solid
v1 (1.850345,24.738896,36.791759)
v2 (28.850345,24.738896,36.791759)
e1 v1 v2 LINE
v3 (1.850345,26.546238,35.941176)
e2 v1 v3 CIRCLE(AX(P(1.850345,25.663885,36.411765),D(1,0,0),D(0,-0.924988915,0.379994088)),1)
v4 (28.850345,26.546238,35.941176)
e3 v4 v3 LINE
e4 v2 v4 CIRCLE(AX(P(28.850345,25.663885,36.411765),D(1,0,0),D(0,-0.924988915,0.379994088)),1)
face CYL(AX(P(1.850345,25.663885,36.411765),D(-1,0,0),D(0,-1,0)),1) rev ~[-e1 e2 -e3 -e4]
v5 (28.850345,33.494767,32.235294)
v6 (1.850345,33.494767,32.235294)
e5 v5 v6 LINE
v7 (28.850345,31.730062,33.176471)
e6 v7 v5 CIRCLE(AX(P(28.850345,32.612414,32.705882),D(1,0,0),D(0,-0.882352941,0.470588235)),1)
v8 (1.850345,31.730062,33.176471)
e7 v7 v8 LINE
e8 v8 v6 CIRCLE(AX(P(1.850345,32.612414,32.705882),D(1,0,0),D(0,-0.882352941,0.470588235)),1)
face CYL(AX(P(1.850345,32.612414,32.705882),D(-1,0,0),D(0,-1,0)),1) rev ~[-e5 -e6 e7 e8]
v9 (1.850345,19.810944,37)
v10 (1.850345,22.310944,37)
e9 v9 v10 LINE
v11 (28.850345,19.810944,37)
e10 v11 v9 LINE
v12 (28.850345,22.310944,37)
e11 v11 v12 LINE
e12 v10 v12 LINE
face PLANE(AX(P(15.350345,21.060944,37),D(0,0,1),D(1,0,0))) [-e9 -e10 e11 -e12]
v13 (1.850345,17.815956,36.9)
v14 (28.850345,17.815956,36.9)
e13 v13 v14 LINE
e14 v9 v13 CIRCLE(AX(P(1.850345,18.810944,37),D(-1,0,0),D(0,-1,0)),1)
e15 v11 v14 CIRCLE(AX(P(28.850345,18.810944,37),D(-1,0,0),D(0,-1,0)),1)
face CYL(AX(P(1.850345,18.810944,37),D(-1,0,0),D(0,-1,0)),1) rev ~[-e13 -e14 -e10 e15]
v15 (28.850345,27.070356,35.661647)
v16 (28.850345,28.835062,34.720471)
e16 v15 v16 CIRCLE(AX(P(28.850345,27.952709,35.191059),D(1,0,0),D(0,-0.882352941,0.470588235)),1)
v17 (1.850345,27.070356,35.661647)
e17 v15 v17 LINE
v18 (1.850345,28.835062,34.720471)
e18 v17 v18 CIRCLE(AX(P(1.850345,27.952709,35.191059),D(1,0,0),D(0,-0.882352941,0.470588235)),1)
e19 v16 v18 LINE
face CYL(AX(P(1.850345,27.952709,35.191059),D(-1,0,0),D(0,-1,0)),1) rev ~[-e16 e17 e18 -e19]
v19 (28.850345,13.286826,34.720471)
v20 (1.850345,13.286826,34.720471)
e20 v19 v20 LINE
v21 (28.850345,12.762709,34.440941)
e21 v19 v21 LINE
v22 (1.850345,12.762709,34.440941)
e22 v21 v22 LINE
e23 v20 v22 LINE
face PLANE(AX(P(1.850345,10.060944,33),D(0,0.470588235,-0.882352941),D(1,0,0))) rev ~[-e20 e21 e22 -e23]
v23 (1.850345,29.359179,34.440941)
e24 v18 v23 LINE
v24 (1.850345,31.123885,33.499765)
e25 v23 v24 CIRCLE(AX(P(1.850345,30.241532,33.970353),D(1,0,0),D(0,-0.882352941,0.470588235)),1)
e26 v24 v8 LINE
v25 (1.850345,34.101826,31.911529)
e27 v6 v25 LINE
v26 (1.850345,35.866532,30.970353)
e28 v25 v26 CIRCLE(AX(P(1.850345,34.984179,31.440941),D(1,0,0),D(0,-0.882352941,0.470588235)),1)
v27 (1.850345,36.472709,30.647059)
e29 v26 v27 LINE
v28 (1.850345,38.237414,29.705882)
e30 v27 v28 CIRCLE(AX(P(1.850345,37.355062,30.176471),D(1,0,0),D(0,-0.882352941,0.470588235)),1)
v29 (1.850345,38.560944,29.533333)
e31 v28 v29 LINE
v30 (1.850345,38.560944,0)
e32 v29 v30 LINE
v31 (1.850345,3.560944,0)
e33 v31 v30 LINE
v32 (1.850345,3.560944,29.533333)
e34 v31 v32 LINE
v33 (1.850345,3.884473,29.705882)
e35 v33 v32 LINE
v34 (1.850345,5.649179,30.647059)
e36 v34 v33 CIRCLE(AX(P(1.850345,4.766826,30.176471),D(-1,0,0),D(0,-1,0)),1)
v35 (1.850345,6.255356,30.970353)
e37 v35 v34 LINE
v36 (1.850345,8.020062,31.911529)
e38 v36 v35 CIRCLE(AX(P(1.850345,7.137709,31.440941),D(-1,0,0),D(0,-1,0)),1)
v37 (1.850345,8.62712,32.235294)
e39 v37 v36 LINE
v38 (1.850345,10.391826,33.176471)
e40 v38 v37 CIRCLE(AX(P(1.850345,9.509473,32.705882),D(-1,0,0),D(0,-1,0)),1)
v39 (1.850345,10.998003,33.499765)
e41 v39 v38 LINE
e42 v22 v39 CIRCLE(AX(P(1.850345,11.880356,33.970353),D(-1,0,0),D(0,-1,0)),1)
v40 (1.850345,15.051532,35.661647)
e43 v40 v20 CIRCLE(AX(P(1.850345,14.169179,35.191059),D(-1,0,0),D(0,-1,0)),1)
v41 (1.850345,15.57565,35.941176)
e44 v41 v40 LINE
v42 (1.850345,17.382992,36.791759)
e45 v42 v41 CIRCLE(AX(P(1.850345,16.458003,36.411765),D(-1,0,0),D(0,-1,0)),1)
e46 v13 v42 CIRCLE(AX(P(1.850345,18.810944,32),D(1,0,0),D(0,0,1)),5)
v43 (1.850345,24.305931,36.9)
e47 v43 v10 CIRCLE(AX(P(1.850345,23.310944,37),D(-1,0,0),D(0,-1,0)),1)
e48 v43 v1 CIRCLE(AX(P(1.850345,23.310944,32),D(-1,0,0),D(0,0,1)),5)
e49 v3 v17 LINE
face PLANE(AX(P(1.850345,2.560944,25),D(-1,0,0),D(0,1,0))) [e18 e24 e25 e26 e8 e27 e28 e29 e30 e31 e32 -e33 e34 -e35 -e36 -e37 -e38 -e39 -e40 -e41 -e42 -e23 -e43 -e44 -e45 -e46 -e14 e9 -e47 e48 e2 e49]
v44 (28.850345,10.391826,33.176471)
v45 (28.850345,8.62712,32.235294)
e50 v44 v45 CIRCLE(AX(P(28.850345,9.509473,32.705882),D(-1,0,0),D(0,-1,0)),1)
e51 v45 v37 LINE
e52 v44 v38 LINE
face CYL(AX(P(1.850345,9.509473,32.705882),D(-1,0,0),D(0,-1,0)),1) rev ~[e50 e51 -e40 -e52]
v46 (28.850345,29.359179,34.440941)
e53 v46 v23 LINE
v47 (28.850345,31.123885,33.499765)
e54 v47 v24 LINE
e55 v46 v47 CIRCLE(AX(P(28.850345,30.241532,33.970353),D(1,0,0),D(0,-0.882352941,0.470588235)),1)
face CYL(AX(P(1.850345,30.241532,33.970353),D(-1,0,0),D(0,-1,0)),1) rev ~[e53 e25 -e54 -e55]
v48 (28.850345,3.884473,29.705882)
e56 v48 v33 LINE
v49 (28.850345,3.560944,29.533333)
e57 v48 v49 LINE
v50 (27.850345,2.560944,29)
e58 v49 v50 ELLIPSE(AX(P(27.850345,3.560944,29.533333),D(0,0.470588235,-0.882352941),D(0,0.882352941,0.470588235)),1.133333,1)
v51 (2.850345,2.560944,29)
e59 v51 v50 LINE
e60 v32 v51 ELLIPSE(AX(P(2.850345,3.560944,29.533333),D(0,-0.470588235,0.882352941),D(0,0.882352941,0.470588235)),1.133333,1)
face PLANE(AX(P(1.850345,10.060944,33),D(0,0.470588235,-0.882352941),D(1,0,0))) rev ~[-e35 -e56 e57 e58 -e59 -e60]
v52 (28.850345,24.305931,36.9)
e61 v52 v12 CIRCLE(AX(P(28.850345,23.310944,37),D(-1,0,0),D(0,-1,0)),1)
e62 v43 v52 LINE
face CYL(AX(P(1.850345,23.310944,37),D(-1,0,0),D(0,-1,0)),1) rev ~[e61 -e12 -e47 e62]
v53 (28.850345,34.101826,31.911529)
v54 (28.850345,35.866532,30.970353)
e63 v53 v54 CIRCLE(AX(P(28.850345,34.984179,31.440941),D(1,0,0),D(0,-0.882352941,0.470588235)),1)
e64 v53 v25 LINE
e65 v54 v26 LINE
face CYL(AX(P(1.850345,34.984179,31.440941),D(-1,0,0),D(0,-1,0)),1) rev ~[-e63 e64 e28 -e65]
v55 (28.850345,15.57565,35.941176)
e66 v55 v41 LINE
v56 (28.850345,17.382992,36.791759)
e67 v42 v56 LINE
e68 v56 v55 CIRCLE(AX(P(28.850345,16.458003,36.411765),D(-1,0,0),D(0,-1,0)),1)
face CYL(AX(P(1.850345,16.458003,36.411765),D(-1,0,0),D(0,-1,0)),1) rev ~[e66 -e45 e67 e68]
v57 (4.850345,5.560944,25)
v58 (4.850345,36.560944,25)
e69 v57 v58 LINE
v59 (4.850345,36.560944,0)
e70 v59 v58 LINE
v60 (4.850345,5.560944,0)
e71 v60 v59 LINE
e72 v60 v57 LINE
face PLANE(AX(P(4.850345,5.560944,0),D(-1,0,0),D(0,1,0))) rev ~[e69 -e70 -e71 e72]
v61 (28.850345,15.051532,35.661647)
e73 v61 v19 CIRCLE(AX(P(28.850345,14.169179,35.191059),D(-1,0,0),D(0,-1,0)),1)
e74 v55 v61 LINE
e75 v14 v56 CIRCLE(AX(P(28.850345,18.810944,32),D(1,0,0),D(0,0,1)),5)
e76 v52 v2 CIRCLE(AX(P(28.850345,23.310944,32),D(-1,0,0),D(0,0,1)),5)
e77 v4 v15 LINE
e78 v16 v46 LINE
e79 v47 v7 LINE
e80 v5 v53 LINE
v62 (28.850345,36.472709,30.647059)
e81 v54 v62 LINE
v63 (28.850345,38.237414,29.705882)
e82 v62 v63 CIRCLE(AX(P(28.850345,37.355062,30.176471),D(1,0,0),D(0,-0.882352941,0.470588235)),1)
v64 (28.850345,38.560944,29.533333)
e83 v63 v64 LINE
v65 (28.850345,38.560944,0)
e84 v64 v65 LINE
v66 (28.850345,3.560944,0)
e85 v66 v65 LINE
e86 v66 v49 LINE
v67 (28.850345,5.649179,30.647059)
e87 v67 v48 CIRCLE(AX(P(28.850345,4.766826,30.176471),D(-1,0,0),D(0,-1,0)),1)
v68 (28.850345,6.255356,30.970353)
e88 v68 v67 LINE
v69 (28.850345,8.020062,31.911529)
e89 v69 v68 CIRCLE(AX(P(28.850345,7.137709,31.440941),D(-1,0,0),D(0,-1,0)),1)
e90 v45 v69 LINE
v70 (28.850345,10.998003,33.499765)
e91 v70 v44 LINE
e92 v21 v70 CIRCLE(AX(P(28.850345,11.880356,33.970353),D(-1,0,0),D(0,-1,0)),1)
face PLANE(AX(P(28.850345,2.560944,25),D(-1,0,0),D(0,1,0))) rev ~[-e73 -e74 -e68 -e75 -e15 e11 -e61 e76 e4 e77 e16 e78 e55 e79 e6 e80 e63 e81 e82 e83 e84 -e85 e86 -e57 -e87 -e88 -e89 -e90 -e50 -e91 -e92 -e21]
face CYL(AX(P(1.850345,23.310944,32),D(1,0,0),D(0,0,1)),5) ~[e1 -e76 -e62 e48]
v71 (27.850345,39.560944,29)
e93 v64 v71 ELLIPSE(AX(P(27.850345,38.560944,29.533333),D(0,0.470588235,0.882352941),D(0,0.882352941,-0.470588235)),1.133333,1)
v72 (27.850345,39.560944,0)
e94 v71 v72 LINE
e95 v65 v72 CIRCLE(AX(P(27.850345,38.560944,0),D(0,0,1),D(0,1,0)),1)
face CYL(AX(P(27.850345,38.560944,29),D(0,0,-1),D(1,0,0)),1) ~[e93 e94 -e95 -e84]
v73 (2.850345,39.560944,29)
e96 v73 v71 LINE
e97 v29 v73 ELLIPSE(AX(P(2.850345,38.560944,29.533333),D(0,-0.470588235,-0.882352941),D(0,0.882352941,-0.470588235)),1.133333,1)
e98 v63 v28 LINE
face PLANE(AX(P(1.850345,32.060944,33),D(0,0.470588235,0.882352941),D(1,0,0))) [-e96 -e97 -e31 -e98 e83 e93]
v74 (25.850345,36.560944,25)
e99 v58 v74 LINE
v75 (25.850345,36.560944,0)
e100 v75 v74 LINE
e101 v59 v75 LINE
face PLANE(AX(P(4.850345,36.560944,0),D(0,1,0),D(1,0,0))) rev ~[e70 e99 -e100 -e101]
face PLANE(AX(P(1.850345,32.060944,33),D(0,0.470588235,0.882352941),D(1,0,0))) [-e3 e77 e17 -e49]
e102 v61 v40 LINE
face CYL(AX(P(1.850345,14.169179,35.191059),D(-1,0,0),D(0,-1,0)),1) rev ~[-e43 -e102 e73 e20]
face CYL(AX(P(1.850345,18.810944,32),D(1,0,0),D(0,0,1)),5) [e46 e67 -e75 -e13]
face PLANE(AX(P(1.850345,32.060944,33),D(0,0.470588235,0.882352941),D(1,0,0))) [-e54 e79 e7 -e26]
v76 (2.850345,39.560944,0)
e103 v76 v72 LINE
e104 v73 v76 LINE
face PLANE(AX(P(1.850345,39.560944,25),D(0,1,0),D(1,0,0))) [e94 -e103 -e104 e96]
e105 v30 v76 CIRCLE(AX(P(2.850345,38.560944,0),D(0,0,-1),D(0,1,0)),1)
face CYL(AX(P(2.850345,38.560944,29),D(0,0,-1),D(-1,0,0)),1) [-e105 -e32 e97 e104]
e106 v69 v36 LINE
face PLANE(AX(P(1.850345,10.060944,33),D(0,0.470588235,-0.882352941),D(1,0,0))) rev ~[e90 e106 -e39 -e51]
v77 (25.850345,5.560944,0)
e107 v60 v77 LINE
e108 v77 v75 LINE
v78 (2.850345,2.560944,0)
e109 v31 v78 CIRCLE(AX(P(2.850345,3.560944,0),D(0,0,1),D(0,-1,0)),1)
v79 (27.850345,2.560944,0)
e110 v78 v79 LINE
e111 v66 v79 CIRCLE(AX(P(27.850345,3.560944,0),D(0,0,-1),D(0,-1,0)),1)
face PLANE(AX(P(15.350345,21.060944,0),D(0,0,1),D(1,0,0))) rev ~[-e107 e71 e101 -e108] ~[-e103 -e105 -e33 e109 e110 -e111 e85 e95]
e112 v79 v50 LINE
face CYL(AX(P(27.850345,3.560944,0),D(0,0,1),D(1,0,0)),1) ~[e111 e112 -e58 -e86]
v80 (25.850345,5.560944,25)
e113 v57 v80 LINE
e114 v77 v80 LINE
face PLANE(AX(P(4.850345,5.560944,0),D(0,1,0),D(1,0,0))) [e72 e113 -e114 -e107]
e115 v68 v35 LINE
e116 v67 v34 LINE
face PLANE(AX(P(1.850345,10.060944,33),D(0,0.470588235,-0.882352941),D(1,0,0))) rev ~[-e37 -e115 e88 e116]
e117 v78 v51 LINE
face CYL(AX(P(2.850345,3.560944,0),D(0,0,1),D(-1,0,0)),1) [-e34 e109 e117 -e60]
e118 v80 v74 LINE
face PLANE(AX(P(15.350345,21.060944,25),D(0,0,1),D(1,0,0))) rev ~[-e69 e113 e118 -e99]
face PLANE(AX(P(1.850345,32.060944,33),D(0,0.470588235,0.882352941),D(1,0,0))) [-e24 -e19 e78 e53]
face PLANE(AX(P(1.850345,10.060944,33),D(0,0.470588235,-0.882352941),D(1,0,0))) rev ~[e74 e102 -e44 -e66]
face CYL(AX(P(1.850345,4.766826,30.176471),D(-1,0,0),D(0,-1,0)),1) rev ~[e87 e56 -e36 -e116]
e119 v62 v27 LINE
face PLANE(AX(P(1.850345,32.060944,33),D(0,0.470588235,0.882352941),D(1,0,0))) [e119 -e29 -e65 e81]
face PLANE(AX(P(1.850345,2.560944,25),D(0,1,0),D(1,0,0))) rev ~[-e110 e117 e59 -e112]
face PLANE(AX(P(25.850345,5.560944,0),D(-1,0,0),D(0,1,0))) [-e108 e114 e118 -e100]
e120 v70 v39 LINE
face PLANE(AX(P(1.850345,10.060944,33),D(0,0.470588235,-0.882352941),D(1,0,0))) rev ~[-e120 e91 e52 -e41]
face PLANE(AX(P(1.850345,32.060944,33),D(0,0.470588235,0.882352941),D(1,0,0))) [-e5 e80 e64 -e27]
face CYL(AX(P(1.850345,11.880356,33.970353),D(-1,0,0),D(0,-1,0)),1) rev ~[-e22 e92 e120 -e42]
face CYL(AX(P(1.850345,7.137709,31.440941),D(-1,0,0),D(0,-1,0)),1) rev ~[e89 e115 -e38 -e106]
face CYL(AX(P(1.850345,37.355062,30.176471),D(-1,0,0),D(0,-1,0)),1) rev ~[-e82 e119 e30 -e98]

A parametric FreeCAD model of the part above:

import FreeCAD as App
import Part
import Sketcher
from FreeCAD import Vector


def edges_at(feature, points):
    """Names of the edges that pass closest to the given points."""
    edges = feature.Shape.Edges
    near = lambda p: min(range(len(edges)), key=lambda i: edges[i].distToShape(Part.Vertex(*p))[0])
    return sorted({f"Edge{near(p) + 1}" for p in points})

doc = App.newDocument("Part")
body = doc.addObject("PartDesign::Body", "Body")

# Sketch on XY plane
sketch1 = body.newObject("Sketcher::SketchObject", "Sketch")
sketch1.AttachmentSupport = (doc.getObject("XY_Plane"), [""])
sketch1.MapMode = "FlatFace"
sketch1.addGeometry(Part.LineSegment(Vector(1.850345, 39.560944, 0), Vector(1.850345, 2.560944, 0)), False)
sketch1.addGeometry(Part.LineSegment(Vector(1.850345, 2.560944, 0), Vector(28.850345, 2.560944, 0)), False)
sketch1.addGeometry(Part.LineSegment(Vector(28.850345, 2.560944, 0), Vector(28.850345, 39.560944, 0)), False)
sketch1.addGeometry(Part.LineSegment(Vector(28.850345, 39.560944, 0), Vector(1.850345, 39.560944, 0)), False)
sketch1.addGeometry(Part.LineSegment(Vector(25.850345, 5.560944, 0), Vector(4.850345, 5.560944, 0)), False)
sketch1.addGeometry(Part.LineSegment(Vector(4.850345, 5.560944, 0), Vector(4.850345, 36.560944, 0)), False)
sketch1.addGeometry(Part.LineSegment(Vector(4.850345, 36.560944, 0), Vector(25.850345, 36.560944, 0)), False)
sketch1.addGeometry(Part.LineSegment(Vector(25.850345, 36.560944, 0), Vector(25.850345, 5.560944, 0)), False)
sketch1.addConstraint(Sketcher.Constraint("Coincident", 0, 2, 1, 1))
sketch1.addConstraint(Sketcher.Constraint("Coincident", 1, 2, 2, 1))
sketch1.addConstraint(Sketcher.Constraint("Coincident", 2, 2, 3, 1))
sketch1.addConstraint(Sketcher.Constraint("Coincident", 3, 2, 0, 1))
sketch1.addConstraint(Sketcher.Constraint("Coincident", 4, 2, 5, 1))
sketch1.addConstraint(Sketcher.Constraint("Coincident", 5, 2, 6, 1))
sketch1.addConstraint(Sketcher.Constraint("Coincident", 6, 2, 7, 1))
sketch1.addConstraint(Sketcher.Constraint("Coincident", 7, 2, 4, 1))
sketch1.addConstraint(Sketcher.Constraint("Vertical", 0))
sketch1.addConstraint(Sketcher.Constraint("Horizontal", 1))
sketch1.addConstraint(Sketcher.Constraint("Vertical", 2))
sketch1.addConstraint(Sketcher.Constraint("Horizontal", 3))
sketch1.addConstraint(Sketcher.Constraint("Horizontal", 4))
sketch1.addConstraint(Sketcher.Constraint("Vertical", 5))
sketch1.addConstraint(Sketcher.Constraint("Horizontal", 6))
sketch1.addConstraint(Sketcher.Constraint("Vertical", 7))
sketch1.addConstraint(Sketcher.Constraint("DistanceX", 1, 1, 1, 2, 27.0))
sketch1.addConstraint(Sketcher.Constraint("DistanceX", 4, 2, 4, 1, 21.0))
sketch1.addConstraint(Sketcher.Constraint("DistanceY", 0, 2, 0, 1, 37.0))
sketch1.addConstraint(Sketcher.Constraint("DistanceY", 5, 1, 5, 2, 31.0))
sketch1.addConstraint(Sketcher.Constraint("DistanceX", 0, 2, 4, 2, 3.0))
sketch1.addConstraint(Sketcher.Constraint("DistanceY", 0, 2, 4, 2, 3.0))
sketch1.addConstraint(Sketcher.Constraint("DistanceX", -1, 1, 0, 2, 1.850345))
sketch1.addConstraint(Sketcher.Constraint("DistanceY", -1, 1, 0, 2, 2.560944))
pad1 = body.newObject("PartDesign::Pad", "Pad")
pad1.Profile = sketch1
pad1.Length = 25

# Sketch on XY plane
sketch2 = body.newObject("Sketcher::SketchObject", "Sketch001")
sketch2.AttachmentSupport = (doc.getObject("XY_Plane"), [""])
sketch2.MapMode = "FlatFace"
sketch2.AttachmentOffset = App.Placement(Vector(0, 0, 25), App.Rotation())
sketch2.addGeometry(Part.LineSegment(Vector(1.850345, 39.560944, 0), Vector(1.850345, 2.560944, 0)), False)
sketch2.addGeometry(Part.LineSegment(Vector(1.850345, 2.560944, 0), Vector(28.850345, 2.560944, 0)), False)
sketch2.addGeometry(Part.LineSegment(Vector(28.850345, 2.560944, 0), Vector(28.850345, 39.560944, 0)), False)
sketch2.addGeometry(Part.LineSegment(Vector(28.850345, 39.560944, 0), Vector(1.850345, 39.560944, 0)), False)
sketch2.addConstraint(Sketcher.Constraint("Coincident", 0, 2, 1, 1))
sketch2.addConstraint(Sketcher.Constraint("Coincident", 1, 2, 2, 1))
sketch2.addConstraint(Sketcher.Constraint("Coincident", 2, 2, 3, 1))
sketch2.addConstraint(Sketcher.Constraint("Coincident", 3, 2, 0, 1))
sketch2.addConstraint(Sketcher.Constraint("Vertical", 0))
sketch2.addConstraint(Sketcher.Constraint("Horizontal", 1))
sketch2.addConstraint(Sketcher.Constraint("Vertical", 2))
sketch2.addConstraint(Sketcher.Constraint("Horizontal", 3))
sketch2.addConstraint(Sketcher.Constraint("DistanceX", 1, 1, 1, 2, 27.0))
sketch2.addConstraint(Sketcher.Constraint("DistanceY", 0, 2, 0, 1, 37.0))
sketch2.addConstraint(Sketcher.Constraint("DistanceX", -1, 1, 0, 2, 1.850345))
sketch2.addConstraint(Sketcher.Constraint("DistanceY", -1, 1, 0, 2, 2.560944))
pad2 = body.newObject("PartDesign::Pad", "Pad001")
pad2.Profile = sketch2
pad2.Length = 12
doc.recompute()

chamfer = body.newObject("PartDesign::Chamfer", "Chamfer")
chamfer.Base = (pad2, edges_at(pad2, [(15.35, 39.561, 37), (15.35, 2.561, 37)]))
chamfer.ChamferType = "Two distances"
chamfer.Size = 15
chamfer.Size2 = 8
doc.recompute()

fillet = body.newObject("PartDesign::Fillet", "Fillet")
fillet.Base = (chamfer, edges_at(chamfer, [(15.35, 24.561, 37), (15.35, 17.561, 37)]))
fillet.Radius = 5

# Sketch on YZ plane
sketch3 = body.newObject("Sketcher::SketchObject", "Sketch002")
sketch3.AttachmentSupport = (doc.getObject("YZ_Plane"), [""])
sketch3.MapMode = "FlatFace"
sketch3.AttachmentOffset = App.Placement(Vector(0, 0, 1.850345), App.Rotation())
sketch3.addGeometry(Part.Circle(Vector(32.612414, 32.705882, 0), Vector(0, 0, 1), 1), False)
sketch3.addGeometry(Part.Circle(Vector(9.509473, 32.705882, 0), Vector(0, 0, 1), 1), False)
sketch3.addGeometry(Part.Circle(Vector(25.663885, 36.411765, 0), Vector(0, 0, 1), 1), False)
sketch3.addGeometry(Part.Circle(Vector(16.458003, 36.411765, 0), Vector(0, 0, 1), 1), False)
sketch3.addGeometry(Part.Circle(Vector(30.241532, 33.970353, 0), Vector(0, 0, 1), 1), False)
sketch3.addGeometry(Part.Circle(Vector(11.880356, 33.970353, 0), Vector(0, 0, 1), 1), False)
sketch3.addGeometry(Part.Circle(Vector(18.810944, 37, 0), Vector(0, 0, 1), 1), False)
sketch3.addGeometry(Part.Circle(Vector(23.310944, 37, 0), Vector(0, 0, 1), 1), False)
sketch3.addGeometry(Part.Circle(Vector(4.766826, 30.176471, 0), Vector(0, 0, 1), 1), False)
sketch3.addGeometry(Part.Circle(Vector(37.355062, 30.176471, 0), Vector(0, 0, 1), 1), False)
sketch3.addGeometry(Part.Circle(Vector(7.137709, 31.440941, 0), Vector(0, 0, 1), 1), False)
sketch3.addGeometry(Part.Circle(Vector(34.984179, 31.440941, 0), Vector(0, 0, 1), 1), False)
sketch3.addGeometry(Part.Circle(Vector(27.952709, 35.191059, 0), Vector(0, 0, 1), 1), False)
sketch3.addGeometry(Part.Circle(Vector(14.169179, 35.191059, 0), Vector(0, 0, 1), 1), False)
sketch3.addConstraint(Sketcher.Constraint("Equal", 0, 1))
sketch3.addConstraint(Sketcher.Constraint("Equal", 1, 2))
sketch3.addConstraint(Sketcher.Constraint("Equal", 2, 3))
sketch3.addConstraint(Sketcher.Constraint("Equal", 3, 4))
sketch3.addConstraint(Sketcher.Constraint("Equal", 4, 5))
sketch3.addConstraint(Sketcher.Constraint("Equal", 5, 6))
sketch3.addConstraint(Sketcher.Constraint("Equal", 6, 7))
sketch3.addConstraint(Sketcher.Constraint("Equal", 7, 8))
sketch3.addConstraint(Sketcher.Constraint("Equal", 8, 9))
sketch3.addConstraint(Sketcher.Constraint("Equal", 9, 10))
sketch3.addConstraint(Sketcher.Constraint("Equal", 10, 11))
sketch3.addConstraint(Sketcher.Constraint("Equal", 11, 12))
sketch3.addConstraint(Sketcher.Constraint("Equal", 12, 13))
sketch3.addConstraint(Sketcher.Constraint("Horizontal", 0, 3, 1, 3))
sketch3.addConstraint(Sketcher.Constraint("Horizontal", 2, 3, 3, 3))
sketch3.addConstraint(Sketcher.Constraint("Horizontal", 4, 3, 5, 3))
sketch3.addConstraint(Sketcher.Constraint("Horizontal", 6, 3, 7, 3))
sketch3.addConstraint(Sketcher.Constraint("Horizontal", 8, 3, 9, 3))
sketch3.addConstraint(Sketcher.Constraint("Horizontal", 10, 3, 11, 3))
sketch3.addConstraint(Sketcher.Constraint("Horizontal", 12, 3, 13, 3))
sketch3.addConstraint(Sketcher.Constraint("Diameter", 0, 2.0))
sketch3.addConstraint(Sketcher.Constraint("DistanceY", -1, 1, 6, 3, 37.0))
sketch3.addConstraint(Sketcher.Constraint("DistanceX", 6, 3, 7, 3, 4.5))
sketch3.addConstraint(Sketcher.Constraint("DistanceY", -1, 1, 8, 3, 30.176471))
sketch3.addConstraint(Sketcher.Constraint("DistanceX", -1, 1, 9, 3, 37.355062))
sketch3.addConstraint(Sketcher.Constraint("DistanceX", -1, 1, 10, 3, 7.137709))
sketch3.addConstraint(Sketcher.Constraint("DistanceY", -1, 1, 10, 3, 31.440941))
sketch3.addConstraint(Sketcher.Constraint("DistanceX", -1, 1, 11, 3, 34.984179))
sketch3.addConstraint(Sketcher.Constraint("DistanceX", -1, 1, 12, 3, 27.952709))
sketch3.addConstraint(Sketcher.Constraint("DistanceY", -1, 1, 12, 3, 35.191059))
sketch3.addConstraint(Sketcher.Constraint("DistanceX", -1, 1, 13, 3, 14.169179))
sketch3.addConstraint(Sketcher.Constraint("DistanceX", 1, 3, 0, 3, 23.102941))
sketch3.addConstraint(Sketcher.Constraint("DistanceX", 2, 3, 0, 3, 6.948529))
sketch3.addConstraint(Sketcher.Constraint("DistanceX", 1, 3, 3, 3, 6.948529))
sketch3.addConstraint(Sketcher.Constraint("DistanceY", 0, 3, 4, 3, 1.264471))
sketch3.addConstraint(Sketcher.Constraint("DistanceY", 4, 3, 2, 3, 2.441412))
sketch3.addConstraint(Sketcher.Constraint("DistanceX", 3, 3, 4, 3, 13.783529))
sketch3.addConstraint(Sketcher.Constraint("DistanceX", 5, 3, 2, 3, 13.783529))
sketch3.addConstraint(Sketcher.Constraint("DistanceX", 3, 3, 6, 3, 2.352941))
sketch3.addConstraint(Sketcher.Constraint("DistanceY", 8, 3, 1, 3, 2.529412))
sketch3.addConstraint(Sketcher.Constraint("DistanceX", 8, 3, 5, 3, 7.113529))
sketch3.addConstraint(Sketcher.Constraint("DistanceX", 4, 3, 9, 3, 7.113529))
pocket1 = body.newObject("PartDesign::Pocket", "Pocket")
pocket1.Profile = sketch3
pocket1.Type = "ThroughAll"
pocket1.Reversed = True
doc.recompute()

fillet2 = body.newObject("PartDesign::Fillet", "Fillet001")
fillet2.Base = (pocket1, edges_at(pocket1, [
    (28.85, 39.561, 14.5),
    (1.85, 39.561, 14.5),
    (28.85, 2.561, 14.5),
    (1.85, 2.561, 14.5),
]))
fillet2.Radius = 1

doc.recompute()
